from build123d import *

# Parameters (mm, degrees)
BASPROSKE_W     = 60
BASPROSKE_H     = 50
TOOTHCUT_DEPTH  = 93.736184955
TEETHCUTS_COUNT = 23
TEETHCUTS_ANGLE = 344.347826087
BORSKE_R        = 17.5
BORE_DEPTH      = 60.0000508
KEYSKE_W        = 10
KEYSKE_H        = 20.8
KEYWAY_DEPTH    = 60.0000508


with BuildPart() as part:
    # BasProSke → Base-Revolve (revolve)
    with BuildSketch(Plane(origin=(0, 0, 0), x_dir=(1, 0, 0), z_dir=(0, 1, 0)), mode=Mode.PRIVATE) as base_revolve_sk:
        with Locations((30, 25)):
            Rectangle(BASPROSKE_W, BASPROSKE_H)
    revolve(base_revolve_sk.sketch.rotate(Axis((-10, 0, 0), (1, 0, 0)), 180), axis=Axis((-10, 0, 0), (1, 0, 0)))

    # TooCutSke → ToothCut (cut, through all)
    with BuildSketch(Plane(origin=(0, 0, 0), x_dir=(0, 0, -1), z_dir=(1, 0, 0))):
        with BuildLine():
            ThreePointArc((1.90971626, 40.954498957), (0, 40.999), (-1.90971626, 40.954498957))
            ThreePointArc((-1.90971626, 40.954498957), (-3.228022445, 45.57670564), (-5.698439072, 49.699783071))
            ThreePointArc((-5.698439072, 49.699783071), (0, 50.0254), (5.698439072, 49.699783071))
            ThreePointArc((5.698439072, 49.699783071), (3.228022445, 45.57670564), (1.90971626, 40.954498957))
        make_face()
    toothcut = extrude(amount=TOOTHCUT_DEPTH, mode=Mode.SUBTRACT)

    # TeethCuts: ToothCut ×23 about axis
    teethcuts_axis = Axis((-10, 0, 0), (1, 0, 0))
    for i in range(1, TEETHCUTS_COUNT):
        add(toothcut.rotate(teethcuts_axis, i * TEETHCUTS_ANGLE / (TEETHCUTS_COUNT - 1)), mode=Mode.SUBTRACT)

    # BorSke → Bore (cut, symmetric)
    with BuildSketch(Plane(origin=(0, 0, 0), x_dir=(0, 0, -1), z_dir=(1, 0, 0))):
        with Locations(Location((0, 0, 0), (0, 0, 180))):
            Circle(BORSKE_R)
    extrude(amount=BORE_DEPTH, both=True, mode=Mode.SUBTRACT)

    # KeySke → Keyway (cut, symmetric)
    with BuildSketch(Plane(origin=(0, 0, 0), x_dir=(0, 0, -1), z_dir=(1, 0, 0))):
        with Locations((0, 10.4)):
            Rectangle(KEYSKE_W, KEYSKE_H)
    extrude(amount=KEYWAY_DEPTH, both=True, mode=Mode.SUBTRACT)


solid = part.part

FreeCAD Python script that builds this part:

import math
import FreeCAD as App
import Part
import Sketcher
from FreeCAD import Vector

doc = App.newDocument("Part")
params = doc.addObject("Spreadsheet::Sheet", "Params")
for row, (alias, value) in enumerate([
    ("sketch1_width", "60 mm"),
    ("sketch1_height", "50 mm"),
    ("revolution_angle", "360 deg"),
    ("sketch2_radius", "18.4 mm"),
    ("sketch3_diameter", "35 mm"),
    ("pocket2_length", "120.000102 mm"),
    ("sketch4_height", "10 mm"),
    ("sketch4_width", "20.8 mm"),
    ("pocket3_length", "120.000102 mm"),
], start=1):
    params.set(f"A{row}", alias)
    params.set(f"B{row}", "=" + value)
    params.setAlias(f"B{row}", alias)

body = doc.addObject("PartDesign::Body", "Body")

# Sketch on XZ plane
sketch1 = doc.addObject("Sketcher::SketchObject", "Sketch")
body.addObject(sketch1)
sketch1.AttachmentSupport = (doc.XZ_Plane, [""])
sketch1.MapMode = "FlatFace"
sketch1.addGeometry(Part.LineSegment(Vector(0, -50, 0), Vector(0, 0, 0)), False)
sketch1.addGeometry(Part.LineSegment(Vector(0, 0, 0), Vector(60, 0, 0)), False)
sketch1.addGeometry(Part.LineSegment(Vector(60, 0, 0), Vector(60, -50, 0)), False)
sketch1.addGeometry(Part.LineSegment(Vector(60, -50, 0), Vector(0, -50, 0)), False)
sketch1.addConstraint(Sketcher.Constraint("Coincident", 0, 2, 1, 1))
sketch1.addConstraint(Sketcher.Constraint("Coincident", 1, 2, 2, 1))
sketch1.addConstraint(Sketcher.Constraint("Coincident", 2, 2, 3, 1))
sketch1.addConstraint(Sketcher.Constraint("Coincident", 3, 2, 0, 1))
sketch1.addConstraint(Sketcher.Constraint("Vertical", 0))
sketch1.addConstraint(Sketcher.Constraint("Horizontal", 1))
sketch1.addConstraint(Sketcher.Constraint("Vertical", 2))
sketch1.addConstraint(Sketcher.Constraint("Horizontal", 3))
sketch1.addConstraint(Sketcher.Constraint("Coincident", 0, 2, -1, 1))
sketch1.addConstraint(Sketcher.Constraint("DistanceX", 1, 1, 1, 2, 60.0))
sketch1.addConstraint(Sketcher.Constraint("DistanceY", 0, 1, 0, 2, 50.0))
sketch1.setExpression("Constraints[9]", "Params.sketch1_width")
sketch1.setExpression("Constraints[10]", "Params.sketch1_height")
revolution = doc.addObject("PartDesign::Revolution", "Revolution")
body.addObject(revolution)
revolution.Profile = sketch1
revolution.ReferenceAxis = (sketch1, ["H_Axis"])
revolution.setExpression("Angle", "Params.revolution_angle")

# Sketch on YZ plane
sketch2 = doc.addObject("Sketcher::SketchObject", "Sketch001")
body.addObject(sketch2)
sketch2.AttachmentSupport = (doc.YZ_Plane, [""])
sketch2.MapMode = "FlatFace"
sketch2.addGeometry(Part.ArcOfCircle(Part.Circle(Vector(0, 0, 0), Vector(0, 0, 1), 41), math.radians(-2.67), math.radians(2.67)), False)
sketch2.addGeometry(Part.ArcOfCircle(Part.Circle(Vector(38.3, -20.1, 0), Vector(0, 0, 1), 18.4), math.radians(52), math.radians(82)), False)
sketch2.addGeometry(Part.ArcOfCircle(Part.Circle(Vector(0, 0, 0), Vector(0, 0, 1), 50), math.radians(-6.54), math.radians(6.54)), False)
sketch2.addGeometry(Part.ArcOfCircle(Part.Circle(Vector(38.3, 20.1, 0), Vector(0, 0, 1), 18.4), math.radians(-82), math.radians(-52)), False)
sketch2.addConstraint(Sketcher.Constraint("Coincident", 0, 1, 1, 2))
sketch2.addConstraint(Sketcher.Constraint("Coincident", 1, 1, 2, 1))
sketch2.addConstraint(Sketcher.Constraint("Coincident", 2, 2, 3, 2))
sketch2.addConstraint(Sketcher.Constraint("Coincident", 3, 1, 0, 2))
sketch2.addConstraint(Sketcher.Constraint("Coincident", 0, 3, -1, 1))
sketch2.addConstraint(Sketcher.Constraint("Coincident", 2, 3, -1, 1))
sketch2.addConstraint(Sketcher.Constraint("Equal", 1, 3))
sketch2.addConstraint(Sketcher.Constraint("Symmetric", 1, 3, 3, 3, -1))
sketch2.addConstraint(Sketcher.Constraint("Radius", 1, 18.4))
sketch2.addConstraint(Sketcher.Constraint("Radius", 0, 40.999))
sketch2.addConstraint(Sketcher.Constraint("Radius", 2, 50.0254))
sketch2.addConstraint(Sketcher.Constraint("DistanceX", -1, 1, 0, 1, 40.954499))
sketch2.addConstraint(Sketcher.Constraint("DistanceY", 1, 3, -1, 1, 20.11168))
sketch2.setExpression("Constraints[8]", "Params.sketch2_radius")
pocket1 = doc.addObject("PartDesign::Pocket", "Pocket")
body.addObject(pocket1)
pocket1.Profile = sketch2
pocket1.Type = "ThroughAll"
pocket1.Reversed = True
doc.recompute()

polarpattern = doc.addObject("PartDesign::PolarPattern", "PolarPattern")
body.addObject(polarpattern)
polarpattern.Originals = [pocket1]
polarpattern.Axis = (doc.X_Axis, [""])
polarpattern.Angle = 360
polarpattern.Occurrences = 23
body.Tip = polarpattern

# Sketch on YZ plane
sketch3 = doc.addObject("Sketcher::SketchObject", "Sketch002")
body.addObject(sketch3)
sketch3.AttachmentSupport = (doc.YZ_Plane, [""])
sketch3.MapMode = "FlatFace"
sketch3.addGeometry(Part.Circle(Vector(0, 0, 0), Vector(0, 0, 1), 18), False)
sketch3.addConstraint(Sketcher.Constraint("Coincident", 0, 3, -1, 1))
sketch3.addConstraint(Sketcher.Constraint("Diameter", 0, 35.0))
sketch3.setExpression("Constraints[1]", "Params.sketch3_diameter")
pocket2 = doc.addObject("PartDesign::Pocket", "Pocket001")
body.addObject(pocket2)
pocket2.Profile = sketch3
pocket2.setExpression("Length", "Params.pocket2_length")
pocket2.Midplane = True

# Sketch on YZ plane
sketch4 = doc.addObject("Sketcher::SketchObject", "Sketch003")
body.addObject(sketch4)
sketch4.AttachmentSupport = (doc.YZ_Plane, [""])
sketch4.MapMode = "FlatFace"
sketch4.addGeometry(Part.LineSegment(Vector(21, 5, 0), Vector(0, 5, 0)), False)
sketch4.addGeometry(Part.LineSegment(Vector(0, 5, 0), Vector(0, -5, 0)), False)
sketch4.addGeometry(Part.LineSegment(Vector(0, -5, 0), Vector(21, -5, 0)), False)
sketch4.addGeometry(Part.LineSegment(Vector(21, -5, 0), Vector(21, 5, 0)), False)
sketch4.addConstraint(Sketcher.Constraint("Coincident", 0, 2, 1, 1))
sketch4.addConstraint(Sketcher.Constraint("Coincident", 1, 2, 2, 1))
sketch4.addConstraint(Sketcher.Constraint("Coincident", 2, 2, 3, 1))
sketch4.addConstraint(Sketcher.Constraint("Coincident", 3, 2, 0, 1))
sketch4.addConstraint(Sketcher.Constraint("Horizontal", 0))
sketch4.addConstraint(Sketcher.Constraint("Vertical", 1))
sketch4.addConstraint(Sketcher.Constraint("Horizontal", 2))
sketch4.addConstraint(Sketcher.Constraint("Vertical", 3))
sketch4.addConstraint(Sketcher.Constraint("Symmetric", 0, 2, 1, 2, -1, 1))
sketch4.addConstraint(Sketcher.Constraint("DistanceY", 1, 2, 1, 1, 10.0))
sketch4.addConstraint(Sketcher.Constraint("DistanceX", 0, 2, 0, 1, 20.8))
sketch4.setExpression("Constraints[9]", "Params.sketch4_height")
sketch4.setExpression("Constraints[10]", "Params.sketch4_width")
pocket3 = doc.addObject("PartDesign::Pocket", "Pocket002")
body.addObject(pocket3)
pocket3.Profile = sketch4
pocket3.setExpression("Length", "Params.pocket3_length")
pocket3.Midplane = True

doc.recompute()
